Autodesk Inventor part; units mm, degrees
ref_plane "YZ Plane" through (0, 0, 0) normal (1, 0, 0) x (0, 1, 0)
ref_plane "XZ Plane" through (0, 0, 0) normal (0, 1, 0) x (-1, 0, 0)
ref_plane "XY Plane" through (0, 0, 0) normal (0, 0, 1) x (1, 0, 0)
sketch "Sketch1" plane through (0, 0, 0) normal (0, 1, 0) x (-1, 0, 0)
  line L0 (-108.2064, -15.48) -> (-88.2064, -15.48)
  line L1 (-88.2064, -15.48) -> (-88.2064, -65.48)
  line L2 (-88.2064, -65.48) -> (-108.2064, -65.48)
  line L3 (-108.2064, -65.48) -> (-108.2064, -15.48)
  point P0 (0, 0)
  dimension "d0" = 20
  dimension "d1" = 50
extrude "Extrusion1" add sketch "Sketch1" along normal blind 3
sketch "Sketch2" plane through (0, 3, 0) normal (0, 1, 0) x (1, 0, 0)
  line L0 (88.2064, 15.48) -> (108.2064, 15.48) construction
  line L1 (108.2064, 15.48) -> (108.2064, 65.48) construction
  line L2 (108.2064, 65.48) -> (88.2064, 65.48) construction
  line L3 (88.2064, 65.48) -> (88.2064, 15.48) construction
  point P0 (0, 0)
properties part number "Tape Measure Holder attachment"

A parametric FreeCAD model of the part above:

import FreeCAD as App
import Part
import Sketcher
from FreeCAD import Vector
Q = App.Units.Quantity

doc = App.newDocument("Part")
body = doc.addObject("PartDesign::Body", "Body")

sketch1 = body.newObject("Sketcher::SketchObject", "Sketch")
sketch1.AttachmentSupport = (doc.getObject("XZ_Plane"), [""])
sketch1.MapMode = "FlatFace"
sketch1.addGeometry([
    Part.LineSegment(Vector(88, -15, 0), Vector(108, -15, 0)),
    Part.LineSegment(Vector(108, -15, 0), Vector(108, -65, 0)),
    Part.LineSegment(Vector(108, -65, 0), Vector(88, -65, 0)),
    Part.LineSegment(Vector(88, -65, 0), Vector(88, -15, 0)),
], False)
sketch1.addConstraint([
    Sketcher.Constraint("Coincident", 0, 2, 1, 1),
    Sketcher.Constraint("Coincident", 1, 2, 2, 1),
    Sketcher.Constraint("Coincident", 2, 2, 3, 1),
    Sketcher.Constraint("Coincident", 3, 2, 0, 1),
    Sketcher.Constraint("Horizontal", 0),
    Sketcher.Constraint("Vertical", 1),
    Sketcher.Constraint("Horizontal", 2),
    Sketcher.Constraint("Vertical", 3),
    Sketcher.Constraint("DistanceX", 0, 1, 0, 2, Q("20 mm")),
    Sketcher.Constraint("DistanceY", 1, 2, 1, 1, Q("50 mm")),
    Sketcher.Constraint("DistanceY", 0, 2, -1, 1, Q("15.48 mm")),
    Sketcher.Constraint("DistanceX", -1, 1, 0, 2, Q("108.2064 mm")),
])
pad1 = body.newObject("PartDesign::Pad", "Pad")
pad1.Profile = sketch1
pad1.Length = 3
pad1.Reversed = True

doc.recompute()
